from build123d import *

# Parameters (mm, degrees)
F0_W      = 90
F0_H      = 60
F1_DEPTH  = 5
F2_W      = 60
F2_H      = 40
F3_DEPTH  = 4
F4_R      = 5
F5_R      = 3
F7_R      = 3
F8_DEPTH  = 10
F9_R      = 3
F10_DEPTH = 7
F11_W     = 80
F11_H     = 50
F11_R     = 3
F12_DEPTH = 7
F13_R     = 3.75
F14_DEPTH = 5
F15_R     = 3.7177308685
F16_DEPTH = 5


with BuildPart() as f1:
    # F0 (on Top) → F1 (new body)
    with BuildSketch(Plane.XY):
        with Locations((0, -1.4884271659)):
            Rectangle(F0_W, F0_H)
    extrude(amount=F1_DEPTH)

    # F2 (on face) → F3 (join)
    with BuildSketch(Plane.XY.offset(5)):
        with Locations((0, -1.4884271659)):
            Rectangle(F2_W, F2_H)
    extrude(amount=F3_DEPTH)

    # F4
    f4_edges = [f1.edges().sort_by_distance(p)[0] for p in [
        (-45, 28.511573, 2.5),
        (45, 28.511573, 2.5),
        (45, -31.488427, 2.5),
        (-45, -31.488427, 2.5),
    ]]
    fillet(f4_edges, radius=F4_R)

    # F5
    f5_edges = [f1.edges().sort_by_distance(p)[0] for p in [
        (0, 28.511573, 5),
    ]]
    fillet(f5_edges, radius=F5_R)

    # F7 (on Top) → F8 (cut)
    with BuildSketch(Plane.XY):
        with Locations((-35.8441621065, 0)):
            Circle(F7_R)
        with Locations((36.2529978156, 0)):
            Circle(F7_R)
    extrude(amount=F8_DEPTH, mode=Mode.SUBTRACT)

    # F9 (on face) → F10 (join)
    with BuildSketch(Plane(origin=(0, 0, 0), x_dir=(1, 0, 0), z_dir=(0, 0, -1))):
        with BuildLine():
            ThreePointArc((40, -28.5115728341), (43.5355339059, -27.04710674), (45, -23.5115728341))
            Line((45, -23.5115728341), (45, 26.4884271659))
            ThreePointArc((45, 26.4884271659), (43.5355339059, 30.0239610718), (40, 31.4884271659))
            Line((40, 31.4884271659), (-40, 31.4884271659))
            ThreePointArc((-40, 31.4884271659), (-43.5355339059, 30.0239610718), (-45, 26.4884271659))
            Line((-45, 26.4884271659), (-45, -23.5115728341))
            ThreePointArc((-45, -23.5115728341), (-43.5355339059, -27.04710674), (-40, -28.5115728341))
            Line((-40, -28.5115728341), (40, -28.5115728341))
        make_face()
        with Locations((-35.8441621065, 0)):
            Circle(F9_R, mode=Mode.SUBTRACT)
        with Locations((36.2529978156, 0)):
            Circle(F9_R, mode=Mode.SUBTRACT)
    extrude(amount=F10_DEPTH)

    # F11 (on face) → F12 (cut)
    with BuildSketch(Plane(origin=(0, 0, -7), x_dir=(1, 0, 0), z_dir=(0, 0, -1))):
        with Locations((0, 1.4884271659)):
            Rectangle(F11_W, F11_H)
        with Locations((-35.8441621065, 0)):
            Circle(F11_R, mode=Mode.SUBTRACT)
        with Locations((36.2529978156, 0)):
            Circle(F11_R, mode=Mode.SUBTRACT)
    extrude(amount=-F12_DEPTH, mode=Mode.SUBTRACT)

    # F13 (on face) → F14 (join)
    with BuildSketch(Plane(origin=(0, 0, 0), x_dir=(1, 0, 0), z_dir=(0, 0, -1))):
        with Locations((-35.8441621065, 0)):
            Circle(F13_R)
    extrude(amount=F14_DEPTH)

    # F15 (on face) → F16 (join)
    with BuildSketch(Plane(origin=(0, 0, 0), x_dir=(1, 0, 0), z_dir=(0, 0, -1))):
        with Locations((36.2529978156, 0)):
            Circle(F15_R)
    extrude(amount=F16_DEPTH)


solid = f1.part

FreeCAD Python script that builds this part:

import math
import FreeCAD as App
import Part
import Sketcher
Q = App.Units.Quantity


def edges_at(feature, points):
    """Names of the edges that pass closest to the given points."""
    edges = feature.Shape.Edges
    near = lambda p: min(range(len(edges)), key=lambda i: edges[i].distToShape(Part.Vertex(*p))[0])
    return sorted({f"Edge{near(p) + 1}" for p in points})

doc = App.newDocument("Part")
body = doc.addObject("PartDesign::Body", "Body")

# Sketch on XY plane
sketch1 = body.newObject("Sketcher::SketchObject", "Sketch")
sketch1.AttachmentSupport = (doc.getObject("XY_Plane"), [""])
sketch1.MapMode = "FlatFace"
sketch1.addGeometry(Part.LineSegment(App.Vector(-45, 28.511573, 0), App.Vector(-45, -31.488427, 0)), False)
sketch1.addGeometry(Part.LineSegment(App.Vector(-45, -31.488427, 0), App.Vector(45, -31.488427, 0)), False)
sketch1.addGeometry(Part.LineSegment(App.Vector(45, -31.488427, 0), App.Vector(45, 28.511573, 0)), False)
sketch1.addGeometry(Part.LineSegment(App.Vector(45, 28.511573, 0), App.Vector(-45, 28.511573, 0)), False)
sketch1.addConstraint(Sketcher.Constraint("Coincident", 0, 2, 1, 1))
sketch1.addConstraint(Sketcher.Constraint("Coincident", 1, 2, 2, 1))
sketch1.addConstraint(Sketcher.Constraint("Coincident", 2, 2, 3, 1))
sketch1.addConstraint(Sketcher.Constraint("Coincident", 3, 2, 0, 1))
sketch1.addConstraint(Sketcher.Constraint("Vertical", 0))
sketch1.addConstraint(Sketcher.Constraint("Horizontal", 1))
sketch1.addConstraint(Sketcher.Constraint("Vertical", 2))
sketch1.addConstraint(Sketcher.Constraint("Horizontal", 3))
sketch1.addConstraint(Sketcher.Constraint("DistanceX", 1, 1, 1, 2, Q("90 mm")))
sketch1.addConstraint(Sketcher.Constraint("DistanceY", 0, 2, 0, 1, Q("60 mm")))
sketch1.addConstraint(Sketcher.Constraint("DistanceX", 0, 2, -1, 1, Q("45 mm")))
sketch1.addConstraint(Sketcher.Constraint("DistanceY", 0, 2, -1, 1, Q("31.488427 mm")))
pad1 = body.newObject("PartDesign::Pad", "Pad")
pad1.Profile = sketch1
pad1.Length = 5

# Sketch on XY plane
sketch2 = body.newObject("Sketcher::SketchObject", "Sketch001")
sketch2.AttachmentSupport = (doc.getObject("XY_Plane"), [""])
sketch2.MapMode = "FlatFace"
sketch2.AttachmentOffset = App.Placement(App.Vector(0, 0, 5), App.Rotation())
sketch2.addGeometry(Part.LineSegment(App.Vector(-30, 18.511573, 0), App.Vector(-30, -21.488427, 0)), False)
sketch2.addGeometry(Part.LineSegment(App.Vector(-30, -21.488427, 0), App.Vector(30, -21.488427, 0)), False)
sketch2.addGeometry(Part.LineSegment(App.Vector(30, -21.488427, 0), App.Vector(30, 18.511573, 0)), False)
sketch2.addGeometry(Part.LineSegment(App.Vector(30, 18.511573, 0), App.Vector(-30, 18.511573, 0)), False)
sketch2.addConstraint(Sketcher.Constraint("Coincident", 0, 2, 1, 1))
sketch2.addConstraint(Sketcher.Constraint("Coincident", 1, 2, 2, 1))
sketch2.addConstraint(Sketcher.Constraint("Coincident", 2, 2, 3, 1))
sketch2.addConstraint(Sketcher.Constraint("Coincident", 3, 2, 0, 1))
sketch2.addConstraint(Sketcher.Constraint("Vertical", 0))
sketch2.addConstraint(Sketcher.Constraint("Horizontal", 1))
sketch2.addConstraint(Sketcher.Constraint("Vertical", 2))
sketch2.addConstraint(Sketcher.Constraint("Horizontal", 3))
sketch2.addConstraint(Sketcher.Constraint("DistanceX", 1, 1, 1, 2, Q("60 mm")))
sketch2.addConstraint(Sketcher.Constraint("DistanceY", 0, 2, 0, 1, Q("40 mm")))
sketch2.addConstraint(Sketcher.Constraint("DistanceX", 0, 2, -1, 1, Q("30 mm")))
sketch2.addConstraint(Sketcher.Constraint("DistanceY", 0, 2, -1, 1, Q("21.488427 mm")))
pad2 = body.newObject("PartDesign::Pad", "Pad001")
pad2.Profile = sketch2
pad2.Length = 4
doc.recompute()

fillet = body.newObject("PartDesign::Fillet", "Fillet")
fillet.Base = (pad2, edges_at(pad2, [
    (-45, 28.512, 2.5),
    (45, 28.512, 2.5),
    (45, -31.488, 2.5),
    (-45, -31.488, 2.5),
]))
fillet.Radius = 5
doc.recompute()

fillet2 = body.newObject("PartDesign::Fillet", "Fillet001")
fillet2.Base = (fillet, edges_at(fillet, [(0, 28.512, 5)]))
fillet2.Radius = 3

# Sketch on XY plane
sketch3 = body.newObject("Sketcher::SketchObject", "Sketch002")
sketch3.AttachmentSupport = (doc.getObject("XY_Plane"), [""])
sketch3.MapMode = "FlatFace"
sketch3.addGeometry(Part.Circle(App.Vector(-35.844162, 0, 0), App.Vector(0, 0, 1), 3), False)
sketch3.addGeometry(Part.Circle(App.Vector(36.252998, 0, 0), App.Vector(0, 0, 1), 3), False)
sketch3.addConstraint(Sketcher.Constraint("Equal", 0, 1))
sketch3.addConstraint(Sketcher.Constraint("PointOnObject", 0, 3, -1))
sketch3.addConstraint(Sketcher.Constraint("PointOnObject", 1, 3, -1))
sketch3.addConstraint(Sketcher.Constraint("Diameter", 0, Q("6 mm")))
sketch3.addConstraint(Sketcher.Constraint("DistanceX", 0, 3, 1, 3, Q("72.09716 mm")))
sketch3.addConstraint(Sketcher.Constraint("DistanceX", 0, 3, -1, 1, Q("35.844162 mm")))
pocket1 = body.newObject("PartDesign::Pocket", "Pocket")
pocket1.Profile = sketch3
pocket1.Length = 10
pocket1.Reversed = True

# Sketch on XY plane
sketch4 = body.newObject("Sketcher::SketchObject", "Sketch003")
sketch4.AttachmentSupport = (doc.getObject("XY_Plane"), [""])
sketch4.MapMode = "FlatFace"
sketch4.addGeometry(Part.ArcOfCircle(Part.Circle(App.Vector(40, 23.511573, 0), App.Vector(0, 0, 1), 5), math.radians(0), math.radians(90)), False)
sketch4.addGeometry(Part.LineSegment(App.Vector(45, 23.511573, 0), App.Vector(45, -26.488427, 0)), False)
sketch4.addGeometry(Part.ArcOfCircle(Part.Circle(App.Vector(40, -26.488427, 0), App.Vector(0, 0, 1), 5), math.radians(-90), math.radians(0)), False)
sketch4.addGeometry(Part.LineSegment(App.Vector(40, -31.488427, 0), App.Vector(-40, -31.488427, 0)), False)
sketch4.addGeometry(Part.ArcOfCircle(Part.Circle(App.Vector(-40, -26.488427, 0), App.Vector(0, 0, 1), 5), math.radians(180), math.radians(270)), False)
sketch4.addGeometry(Part.LineSegment(App.Vector(-45, -26.488427, 0), App.Vector(-45, 23.511573, 0)), False)
sketch4.addGeometry(Part.ArcOfCircle(Part.Circle(App.Vector(-40, 23.511573, 0), App.Vector(0, 0, 1), 5), math.radians(90), math.radians(180)), False)
sketch4.addGeometry(Part.LineSegment(App.Vector(-40, 28.511573, 0), App.Vector(40, 28.511573, 0)), False)
sketch4.addGeometry(Part.Circle(App.Vector(-35.844162, 0, 0), App.Vector(0, 0, 1), 3), False)
sketch4.addGeometry(Part.Circle(App.Vector(36.252998, 0, 0), App.Vector(0, 0, 1), 3), False)
sketch4.addConstraint(Sketcher.Constraint("Tangent", 0, 1, 1, 1))
sketch4.addConstraint(Sketcher.Constraint("Tangent", 1, 2, 2, 2))
sketch4.addConstraint(Sketcher.Constraint("Tangent", 2, 1, 3, 1))
sketch4.addConstraint(Sketcher.Constraint("Tangent", 3, 2, 4, 2))
sketch4.addConstraint(Sketcher.Constraint("Tangent", 4, 1, 5, 1))
sketch4.addConstraint(Sketcher.Constraint("Tangent", 5, 2, 6, 2))
sketch4.addConstraint(Sketcher.Constraint("Tangent", 6, 1, 7, 1))
sketch4.addConstraint(Sketcher.Constraint("Tangent", 7, 2, 0, 2))
sketch4.addConstraint(Sketcher.Constraint("Vertical", 1))
sketch4.addConstraint(Sketcher.Constraint("Horizontal", 3))
sketch4.addConstraint(Sketcher.Constraint("Vertical", 5))
sketch4.addConstraint(Sketcher.Constraint("Horizontal", 7))
sketch4.addConstraint(Sketcher.Constraint("Equal", 0, 2))
sketch4.addConstraint(Sketcher.Constraint("Equal", 2, 4))
sketch4.addConstraint(Sketcher.Constraint("Equal", 4, 6))
sketch4.addConstraint(Sketcher.Constraint("Equal", 8, 9))
sketch4.addConstraint(Sketcher.Constraint("PointOnObject", 8, 3, -1))
sketch4.addConstraint(Sketcher.Constraint("PointOnObject", 9, 3, -1))
sketch4.addConstraint(Sketcher.Constraint("Diameter", 8, Q("6 mm")))
sketch4.addConstraint(Sketcher.Constraint("Radius", 0, Q("5 mm")))
sketch4.addConstraint(Sketcher.Constraint("DistanceX", 3, 2, 3, 1, Q("80 mm")))
sketch4.addConstraint(Sketcher.Constraint("DistanceY", 1, 2, 1, 1, Q("50 mm")))
sketch4.addConstraint(Sketcher.Constraint("DistanceX", -1, 1, 0, 3, Q("40 mm")))
sketch4.addConstraint(Sketcher.Constraint("DistanceX", 8, 3, 9, 3, Q("72.09716 mm")))
sketch4.addConstraint(Sketcher.Constraint("DistanceY", -1, 1, 0, 3, Q("23.511573 mm")))
sketch4.addConstraint(Sketcher.Constraint("DistanceX", 8, 3, -1, 1, Q("35.844162 mm")))
pad3 = body.newObject("PartDesign::Pad", "Pad002")
pad3.Profile = sketch4
pad3.Length = 7
pad3.Reversed = True

# Sketch on XY plane
sketch5 = body.newObject("Sketcher::SketchObject", "Sketch004")
sketch5.AttachmentSupport = (doc.getObject("XY_Plane"), [""])
sketch5.MapMode = "FlatFace"
sketch5.AttachmentOffset = App.Placement(App.Vector(0, 0, -7), App.Rotation())
sketch5.addGeometry(Part.LineSegment(App.Vector(-40, -26.488427, 0), App.Vector(-40, 23.511573, 0)), False)
sketch5.addGeometry(Part.LineSegment(App.Vector(-40, 23.511573, 0), App.Vector(40, 23.511573, 0)), False)
sketch5.addGeometry(Part.LineSegment(App.Vector(40, 23.511573, 0), App.Vector(40, -26.488427, 0)), False)
sketch5.addGeometry(Part.LineSegment(App.Vector(40, -26.488427, 0), App.Vector(-40, -26.488427, 0)), False)
sketch5.addGeometry(Part.Circle(App.Vector(-35.844162, 0, 0), App.Vector(0, 0, 1), 3), False)
sketch5.addGeometry(Part.Circle(App.Vector(36.252998, 0, 0), App.Vector(0, 0, 1), 3), False)
sketch5.addConstraint(Sketcher.Constraint("Coincident", 0, 2, 1, 1))
sketch5.addConstraint(Sketcher.Constraint("Coincident", 1, 2, 2, 1))
sketch5.addConstraint(Sketcher.Constraint("Coincident", 2, 2, 3, 1))
sketch5.addConstraint(Sketcher.Constraint("Coincident", 3, 2, 0, 1))
sketch5.addConstraint(Sketcher.Constraint("Vertical", 0))
sketch5.addConstraint(Sketcher.Constraint("Horizontal", 1))
sketch5.addConstraint(Sketcher.Constraint("Vertical", 2))
sketch5.addConstraint(Sketcher.Constraint("Horizontal", 3))
sketch5.addConstraint(Sketcher.Constraint("Equal", 4, 5))
sketch5.addConstraint(Sketcher.Constraint("PointOnObject", 4, 3, -1))
sketch5.addConstraint(Sketcher.Constraint("PointOnObject", 5, 3, -1))
sketch5.addConstraint(Sketcher.Constraint("Diameter", 4, Q("6 mm")))
sketch5.addConstraint(Sketcher.Constraint("DistanceX", 1, 1, 1, 2, Q("80 mm")))
sketch5.addConstraint(Sketcher.Constraint("DistanceY", 0, 1, 0, 2, Q("50 mm")))
sketch5.addConstraint(Sketcher.Constraint("DistanceX", 0, 2, -1, 1, Q("40 mm")))
sketch5.addConstraint(Sketcher.Constraint("DistanceX", 4, 3, 5, 3, Q("72.09716 mm")))
sketch5.addConstraint(Sketcher.Constraint("DistanceX", 4, 3, -1, 1, Q("35.844162 mm")))
sketch5.addConstraint(Sketcher.Constraint("DistanceY", -1, 1, 0, 2, Q("23.511573 mm")))
pocket2 = body.newObject("PartDesign::Pocket", "Pocket001")
pocket2.Profile = sketch5
pocket2.Length = 7
pocket2.Reversed = True

# Sketch on XY plane
sketch6 = body.newObject("Sketcher::SketchObject", "Sketch005")
sketch6.AttachmentSupport = (doc.getObject("XY_Plane"), [""])
sketch6.MapMode = "FlatFace"
sketch6.addGeometry(Part.Circle(App.Vector(-35.844162, 0, 0), App.Vector(0, 0, 1), 3.75), False)
sketch6.addConstraint(Sketcher.Constraint("PointOnObject", 0, 3, -1))
sketch6.addConstraint(Sketcher.Constraint("Diameter", 0, Q("7.5 mm")))
sketch6.addConstraint(Sketcher.Constraint("DistanceX", 0, 3, -1, 1, Q("35.844162 mm")))
pad4 = body.newObject("PartDesign::Pad", "Pad003")
pad4.Profile = sketch6
pad4.Length = 5
pad4.Reversed = True

# Sketch on XY plane
sketch7 = body.newObject("Sketcher::SketchObject", "Sketch006")
sketch7.AttachmentSupport = (doc.getObject("XY_Plane"), [""])
sketch7.MapMode = "FlatFace"
sketch7.addGeometry(Part.Circle(App.Vector(36.252998, 0, 0), App.Vector(0, 0, 1), 3.717731), False)
sketch7.addConstraint(Sketcher.Constraint("PointOnObject", 0, 3, -1))
sketch7.addConstraint(Sketcher.Constraint("Diameter", 0, Q("7.435462 mm")))
sketch7.addConstraint(Sketcher.Constraint("DistanceX", -1, 1, 0, 3, Q("36.252998 mm")))
pad5 = body.newObject("PartDesign::Pad", "Pad004")
pad5.Profile = sketch7
pad5.Length = 5
pad5.Reversed = True

doc.recompute()
